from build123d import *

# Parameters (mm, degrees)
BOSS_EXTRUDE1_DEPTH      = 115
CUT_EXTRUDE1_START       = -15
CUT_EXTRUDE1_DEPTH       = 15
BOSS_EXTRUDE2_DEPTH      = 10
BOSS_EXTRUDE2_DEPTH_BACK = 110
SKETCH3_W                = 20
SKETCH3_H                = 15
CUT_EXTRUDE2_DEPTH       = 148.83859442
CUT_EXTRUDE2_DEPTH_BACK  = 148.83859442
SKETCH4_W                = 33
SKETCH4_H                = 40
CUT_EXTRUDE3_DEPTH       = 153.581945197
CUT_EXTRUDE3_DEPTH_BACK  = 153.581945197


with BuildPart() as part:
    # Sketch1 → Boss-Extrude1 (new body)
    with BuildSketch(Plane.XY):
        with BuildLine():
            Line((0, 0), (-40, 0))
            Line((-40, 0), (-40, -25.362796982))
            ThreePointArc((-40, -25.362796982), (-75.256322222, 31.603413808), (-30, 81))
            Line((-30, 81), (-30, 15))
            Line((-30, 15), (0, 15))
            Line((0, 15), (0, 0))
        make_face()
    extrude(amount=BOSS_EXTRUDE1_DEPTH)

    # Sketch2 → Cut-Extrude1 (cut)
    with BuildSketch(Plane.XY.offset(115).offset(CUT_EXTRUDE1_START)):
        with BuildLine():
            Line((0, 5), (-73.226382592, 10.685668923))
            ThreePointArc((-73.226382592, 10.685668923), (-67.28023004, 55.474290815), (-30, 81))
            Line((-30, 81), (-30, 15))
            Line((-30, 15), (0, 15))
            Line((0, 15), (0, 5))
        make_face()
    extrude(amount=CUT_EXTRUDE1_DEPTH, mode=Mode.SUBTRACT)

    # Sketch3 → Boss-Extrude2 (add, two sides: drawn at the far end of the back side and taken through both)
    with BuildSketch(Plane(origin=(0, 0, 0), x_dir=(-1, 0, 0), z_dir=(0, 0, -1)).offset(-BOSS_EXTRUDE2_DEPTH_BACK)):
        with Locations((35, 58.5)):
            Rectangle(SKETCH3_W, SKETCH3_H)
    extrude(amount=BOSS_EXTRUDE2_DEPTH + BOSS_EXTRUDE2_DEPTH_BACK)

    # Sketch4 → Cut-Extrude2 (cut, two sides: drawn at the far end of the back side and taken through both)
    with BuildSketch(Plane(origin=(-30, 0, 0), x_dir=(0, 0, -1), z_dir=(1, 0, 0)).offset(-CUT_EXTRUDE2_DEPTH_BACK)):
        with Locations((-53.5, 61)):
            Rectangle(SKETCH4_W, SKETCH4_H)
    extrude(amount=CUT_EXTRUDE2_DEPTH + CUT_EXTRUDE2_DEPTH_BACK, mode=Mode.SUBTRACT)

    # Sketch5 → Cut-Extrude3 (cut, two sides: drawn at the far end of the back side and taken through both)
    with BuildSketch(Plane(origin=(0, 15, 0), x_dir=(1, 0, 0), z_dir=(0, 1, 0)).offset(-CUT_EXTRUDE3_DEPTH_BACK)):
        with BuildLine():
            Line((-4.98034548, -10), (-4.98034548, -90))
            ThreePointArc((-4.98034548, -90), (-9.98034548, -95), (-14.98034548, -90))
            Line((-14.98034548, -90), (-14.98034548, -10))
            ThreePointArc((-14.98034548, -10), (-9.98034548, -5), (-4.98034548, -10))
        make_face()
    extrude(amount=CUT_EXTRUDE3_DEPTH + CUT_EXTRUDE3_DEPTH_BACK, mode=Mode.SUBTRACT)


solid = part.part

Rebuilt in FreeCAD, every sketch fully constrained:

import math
import FreeCAD as App
import Part
import Sketcher


def add_polygon(sketch, points):
    """Adds a closed chain of lines whose ends are joined by coincident constraints."""
    first, n = sketch.GeometryCount, len(points)
    for a, b in zip(points, points[1:] + points[:1]):
        sketch.addGeometry(Part.LineSegment(App.Vector(*a, 0), App.Vector(*b, 0)), False)
    for i in range(n):
        sketch.addConstraint(Sketcher.Constraint("Coincident", first + i, 2, first + (i + 1) % n, 1))

doc = App.newDocument("Part")
body = doc.addObject("PartDesign::Body", "Body")

# Sketch on XY plane
sketch1 = body.newObject("Sketcher::SketchObject", "Sketch")
sketch1.AttachmentSupport = (doc.getObject("XY_Plane"), [""])
sketch1.MapMode = "FlatFace"
sketch1.addGeometry([
    Part.LineSegment(App.Vector(-40, 0, 0), App.Vector(0, 0, 0)),  # 0
    Part.LineSegment(App.Vector(0, 0, 0), App.Vector(0, 15, 0)),  # 1
    Part.LineSegment(App.Vector(0, 15, 0), App.Vector(-30, 15, 0)),  # 2
    Part.LineSegment(App.Vector(-30, 15, 0), App.Vector(-30, 81, 0)),  # 3
    Part.ArcOfCircle(Part.Circle(App.Vector(-20, 26, 0), App.Vector(0, 0, 1), 56), math.radians(100), math.radians(249)),  # 4
    Part.LineSegment(App.Vector(-40, -25, 0), App.Vector(-40, 0, 0)),  # 5
], False)
sketch1.addConstraint([
    Sketcher.Constraint("Coincident", 0, 2, 1, 1),
    Sketcher.Constraint("Coincident", 1, 2, 2, 1),
    Sketcher.Constraint("Coincident", 2, 2, 3, 1),
    Sketcher.Constraint("Coincident", 3, 2, 4, 1),
    Sketcher.Constraint("Coincident", 4, 2, 5, 1),
    Sketcher.Constraint("Coincident", 5, 2, 0, 1),
    Sketcher.Constraint("Horizontal", 0),
    Sketcher.Constraint("Vertical", 1),
    Sketcher.Constraint("Horizontal", 2),
    Sketcher.Constraint("Vertical", 3),
    Sketcher.Constraint("Vertical", 5),
    Sketcher.Constraint("Coincident", 0, 2, -1, 1),
    Sketcher.Constraint("Radius", 4, 55.5),
    Sketcher.Constraint("DistanceX", 0, 1, 0, 2, 40.0),
    Sketcher.Constraint("DistanceX", 2, 2, 2, 1, 30.0),
    Sketcher.Constraint("DistanceY", 1, 1, 1, 2, 15.0),
    Sketcher.Constraint("DistanceY", 3, 1, 3, 2, 66.0),
    Sketcher.Constraint("DistanceX", 4, 3, -1, 1, 20.0),
])
pad1 = body.newObject("PartDesign::Pad", "Pad")
pad1.Profile = sketch1
pad1.Length = 115

# Sketch on XY plane
sketch2 = body.newObject("Sketcher::SketchObject", "Sketch001")
sketch2.AttachmentSupport = (doc.getObject("XY_Plane"), [""])
sketch2.MapMode = "FlatFace"
sketch2.AttachmentOffset = App.Placement(App.Vector(0, 0, 100), App.Rotation())
sketch2.addGeometry([
    Part.LineSegment(App.Vector(-73, 11, 0), App.Vector(0, 5, 0)),  # 0
    Part.LineSegment(App.Vector(0, 5, 0), App.Vector(0, 15, 0)),  # 1
    Part.LineSegment(App.Vector(0, 15, 0), App.Vector(-30, 15, 0)),  # 2
    Part.LineSegment(App.Vector(-30, 15, 0), App.Vector(-30, 81, 0)),  # 3
    Part.ArcOfCircle(Part.Circle(App.Vector(-20, 26, 0), App.Vector(0, 0, 1), 56), math.radians(100), math.radians(196)),  # 4
], False)
sketch2.addConstraint([
    Sketcher.Constraint("Coincident", 0, 2, 1, 1),
    Sketcher.Constraint("Coincident", 1, 2, 2, 1),
    Sketcher.Constraint("Coincident", 2, 2, 3, 1),
    Sketcher.Constraint("Coincident", 3, 2, 4, 1),
    Sketcher.Constraint("Coincident", 4, 2, 0, 1),
    Sketcher.Constraint("Vertical", 1),
    Sketcher.Constraint("Horizontal", 2),
    Sketcher.Constraint("Vertical", 3),
    Sketcher.Constraint("PointOnObject", 0, 2, -2),
    Sketcher.Constraint("Radius", 4, 55.5),
    Sketcher.Constraint("DistanceX", 2, 2, 2, 1, 30.0),
    Sketcher.Constraint("DistanceY", 1, 1, 1, 2, 10.0),
    Sketcher.Constraint("DistanceY", 3, 1, 3, 2, 66.0),
    Sketcher.Constraint("DistanceX", 4, 3, -1, 1, 20.0),
    Sketcher.Constraint("DistanceY", -1, 1, 0, 2, 5.0),
    Sketcher.Constraint("DistanceY", -1, 1, 4, 2, 10.685669),
])
pocket1 = body.newObject("PartDesign::Pocket", "Pocket")
pocket1.Profile = sketch2
pocket1.Length = 15
pocket1.Reversed = True

# Sketch on XY plane
sketch3 = body.newObject("Sketcher::SketchObject", "Sketch002")
sketch3.AttachmentSupport = (doc.getObject("XY_Plane"), [""])
sketch3.MapMode = "FlatFace"
add_polygon(sketch3, [(-25, 66), (-25, 51), (-45, 51), (-45, 66)])  # lines 0-3
sketch3.addConstraint([
    Sketcher.Constraint("Vertical", 0),
    Sketcher.Constraint("Horizontal", 1),
    Sketcher.Constraint("Vertical", 2),
    Sketcher.Constraint("Horizontal", 3),
    Sketcher.Constraint("DistanceX", 1, 2, 1, 1, 20.0),
    Sketcher.Constraint("DistanceY", 0, 2, 0, 1, 15.0),
    Sketcher.Constraint("DistanceX", 0, 2, -1, 1, 25.0),
    Sketcher.Constraint("DistanceY", -1, 1, 0, 2, 51.0),
])
pad2 = body.newObject("PartDesign::Pad", "Pad001")
pad2.Profile = sketch3
pad2.Type = "TwoLengths"
pad2.Length = 10
pad2.Length2 = 110
pad2.Reversed = True

# Sketch on YZ plane
sketch4 = body.newObject("Sketcher::SketchObject", "Sketch003")
sketch4.AttachmentSupport = (doc.getObject("YZ_Plane"), [""])
sketch4.MapMode = "FlatFace"
sketch4.AttachmentOffset = App.Placement(App.Vector(0, 0, -30), App.Rotation())
add_polygon(sketch4, [(81, 70), (41, 70), (41, 37), (81, 37)])  # lines 0-3
sketch4.addConstraint([
    Sketcher.Constraint("Horizontal", 0),
    Sketcher.Constraint("Vertical", 1),
    Sketcher.Constraint("Horizontal", 2),
    Sketcher.Constraint("Vertical", 3),
    Sketcher.Constraint("DistanceX", 0, 2, 0, 1, 40.0),
    Sketcher.Constraint("DistanceY", 1, 2, 1, 1, 33.0),
    Sketcher.Constraint("DistanceX", -1, 1, 0, 2, 41.0),
    Sketcher.Constraint("DistanceY", -1, 1, 0, 2, 70.0),
])
pocket2 = body.newObject("PartDesign::Pocket", "Pocket001")
pocket2.Profile = sketch4
pocket2.Type = "ThroughAll"
pocket2.Midplane = True

# Sketch on XZ plane
sketch5 = body.newObject("Sketcher::SketchObject", "Sketch004")
sketch5.AttachmentSupport = (doc.getObject("XZ_Plane"), [""])
sketch5.MapMode = "FlatFace"
sketch5.AttachmentOffset = App.Placement(App.Vector(0, 0, -15), App.Rotation())
sketch5.addGeometry([
    Part.LineSegment(App.Vector(-5, 90, 0), App.Vector(-5, 10, 0)),
    Part.ArcOfCircle(Part.Circle(App.Vector(-10, 10, 0), App.Vector(0, 0, 1), 5), math.radians(180), math.radians(360)),
    Part.LineSegment(App.Vector(-15, 10, 0), App.Vector(-15, 90, 0)),
    Part.ArcOfCircle(Part.Circle(App.Vector(-10, 90, 0), App.Vector(0, 0, 1), 5), math.radians(0), math.radians(180)),
], False)
sketch5.addConstraint([
    Sketcher.Constraint("Tangent", 0, 2, 1, 2),
    Sketcher.Constraint("Tangent", 1, 1, 2, 1),
    Sketcher.Constraint("Tangent", 2, 2, 3, 2),
    Sketcher.Constraint("Tangent", 3, 1, 0, 1),
    Sketcher.Constraint("Vertical", 0),
    Sketcher.Constraint("Vertical", 2),
    Sketcher.Constraint("Radius", 1, 5.0),
    Sketcher.Constraint("DistanceY", 0, 2, 0, 1, 80.0),
    Sketcher.Constraint("DistanceY", -1, 1, 1, 3, 10.0),
    Sketcher.Constraint("DistanceX", 1, 3, -1, 1, 9.980345),
])
pocket3 = body.newObject("PartDesign::Pocket", "Pocket002")
pocket3.Profile = sketch5
pocket3.Type = "ThroughAll"
pocket3.Midplane = True

doc.recompute()
